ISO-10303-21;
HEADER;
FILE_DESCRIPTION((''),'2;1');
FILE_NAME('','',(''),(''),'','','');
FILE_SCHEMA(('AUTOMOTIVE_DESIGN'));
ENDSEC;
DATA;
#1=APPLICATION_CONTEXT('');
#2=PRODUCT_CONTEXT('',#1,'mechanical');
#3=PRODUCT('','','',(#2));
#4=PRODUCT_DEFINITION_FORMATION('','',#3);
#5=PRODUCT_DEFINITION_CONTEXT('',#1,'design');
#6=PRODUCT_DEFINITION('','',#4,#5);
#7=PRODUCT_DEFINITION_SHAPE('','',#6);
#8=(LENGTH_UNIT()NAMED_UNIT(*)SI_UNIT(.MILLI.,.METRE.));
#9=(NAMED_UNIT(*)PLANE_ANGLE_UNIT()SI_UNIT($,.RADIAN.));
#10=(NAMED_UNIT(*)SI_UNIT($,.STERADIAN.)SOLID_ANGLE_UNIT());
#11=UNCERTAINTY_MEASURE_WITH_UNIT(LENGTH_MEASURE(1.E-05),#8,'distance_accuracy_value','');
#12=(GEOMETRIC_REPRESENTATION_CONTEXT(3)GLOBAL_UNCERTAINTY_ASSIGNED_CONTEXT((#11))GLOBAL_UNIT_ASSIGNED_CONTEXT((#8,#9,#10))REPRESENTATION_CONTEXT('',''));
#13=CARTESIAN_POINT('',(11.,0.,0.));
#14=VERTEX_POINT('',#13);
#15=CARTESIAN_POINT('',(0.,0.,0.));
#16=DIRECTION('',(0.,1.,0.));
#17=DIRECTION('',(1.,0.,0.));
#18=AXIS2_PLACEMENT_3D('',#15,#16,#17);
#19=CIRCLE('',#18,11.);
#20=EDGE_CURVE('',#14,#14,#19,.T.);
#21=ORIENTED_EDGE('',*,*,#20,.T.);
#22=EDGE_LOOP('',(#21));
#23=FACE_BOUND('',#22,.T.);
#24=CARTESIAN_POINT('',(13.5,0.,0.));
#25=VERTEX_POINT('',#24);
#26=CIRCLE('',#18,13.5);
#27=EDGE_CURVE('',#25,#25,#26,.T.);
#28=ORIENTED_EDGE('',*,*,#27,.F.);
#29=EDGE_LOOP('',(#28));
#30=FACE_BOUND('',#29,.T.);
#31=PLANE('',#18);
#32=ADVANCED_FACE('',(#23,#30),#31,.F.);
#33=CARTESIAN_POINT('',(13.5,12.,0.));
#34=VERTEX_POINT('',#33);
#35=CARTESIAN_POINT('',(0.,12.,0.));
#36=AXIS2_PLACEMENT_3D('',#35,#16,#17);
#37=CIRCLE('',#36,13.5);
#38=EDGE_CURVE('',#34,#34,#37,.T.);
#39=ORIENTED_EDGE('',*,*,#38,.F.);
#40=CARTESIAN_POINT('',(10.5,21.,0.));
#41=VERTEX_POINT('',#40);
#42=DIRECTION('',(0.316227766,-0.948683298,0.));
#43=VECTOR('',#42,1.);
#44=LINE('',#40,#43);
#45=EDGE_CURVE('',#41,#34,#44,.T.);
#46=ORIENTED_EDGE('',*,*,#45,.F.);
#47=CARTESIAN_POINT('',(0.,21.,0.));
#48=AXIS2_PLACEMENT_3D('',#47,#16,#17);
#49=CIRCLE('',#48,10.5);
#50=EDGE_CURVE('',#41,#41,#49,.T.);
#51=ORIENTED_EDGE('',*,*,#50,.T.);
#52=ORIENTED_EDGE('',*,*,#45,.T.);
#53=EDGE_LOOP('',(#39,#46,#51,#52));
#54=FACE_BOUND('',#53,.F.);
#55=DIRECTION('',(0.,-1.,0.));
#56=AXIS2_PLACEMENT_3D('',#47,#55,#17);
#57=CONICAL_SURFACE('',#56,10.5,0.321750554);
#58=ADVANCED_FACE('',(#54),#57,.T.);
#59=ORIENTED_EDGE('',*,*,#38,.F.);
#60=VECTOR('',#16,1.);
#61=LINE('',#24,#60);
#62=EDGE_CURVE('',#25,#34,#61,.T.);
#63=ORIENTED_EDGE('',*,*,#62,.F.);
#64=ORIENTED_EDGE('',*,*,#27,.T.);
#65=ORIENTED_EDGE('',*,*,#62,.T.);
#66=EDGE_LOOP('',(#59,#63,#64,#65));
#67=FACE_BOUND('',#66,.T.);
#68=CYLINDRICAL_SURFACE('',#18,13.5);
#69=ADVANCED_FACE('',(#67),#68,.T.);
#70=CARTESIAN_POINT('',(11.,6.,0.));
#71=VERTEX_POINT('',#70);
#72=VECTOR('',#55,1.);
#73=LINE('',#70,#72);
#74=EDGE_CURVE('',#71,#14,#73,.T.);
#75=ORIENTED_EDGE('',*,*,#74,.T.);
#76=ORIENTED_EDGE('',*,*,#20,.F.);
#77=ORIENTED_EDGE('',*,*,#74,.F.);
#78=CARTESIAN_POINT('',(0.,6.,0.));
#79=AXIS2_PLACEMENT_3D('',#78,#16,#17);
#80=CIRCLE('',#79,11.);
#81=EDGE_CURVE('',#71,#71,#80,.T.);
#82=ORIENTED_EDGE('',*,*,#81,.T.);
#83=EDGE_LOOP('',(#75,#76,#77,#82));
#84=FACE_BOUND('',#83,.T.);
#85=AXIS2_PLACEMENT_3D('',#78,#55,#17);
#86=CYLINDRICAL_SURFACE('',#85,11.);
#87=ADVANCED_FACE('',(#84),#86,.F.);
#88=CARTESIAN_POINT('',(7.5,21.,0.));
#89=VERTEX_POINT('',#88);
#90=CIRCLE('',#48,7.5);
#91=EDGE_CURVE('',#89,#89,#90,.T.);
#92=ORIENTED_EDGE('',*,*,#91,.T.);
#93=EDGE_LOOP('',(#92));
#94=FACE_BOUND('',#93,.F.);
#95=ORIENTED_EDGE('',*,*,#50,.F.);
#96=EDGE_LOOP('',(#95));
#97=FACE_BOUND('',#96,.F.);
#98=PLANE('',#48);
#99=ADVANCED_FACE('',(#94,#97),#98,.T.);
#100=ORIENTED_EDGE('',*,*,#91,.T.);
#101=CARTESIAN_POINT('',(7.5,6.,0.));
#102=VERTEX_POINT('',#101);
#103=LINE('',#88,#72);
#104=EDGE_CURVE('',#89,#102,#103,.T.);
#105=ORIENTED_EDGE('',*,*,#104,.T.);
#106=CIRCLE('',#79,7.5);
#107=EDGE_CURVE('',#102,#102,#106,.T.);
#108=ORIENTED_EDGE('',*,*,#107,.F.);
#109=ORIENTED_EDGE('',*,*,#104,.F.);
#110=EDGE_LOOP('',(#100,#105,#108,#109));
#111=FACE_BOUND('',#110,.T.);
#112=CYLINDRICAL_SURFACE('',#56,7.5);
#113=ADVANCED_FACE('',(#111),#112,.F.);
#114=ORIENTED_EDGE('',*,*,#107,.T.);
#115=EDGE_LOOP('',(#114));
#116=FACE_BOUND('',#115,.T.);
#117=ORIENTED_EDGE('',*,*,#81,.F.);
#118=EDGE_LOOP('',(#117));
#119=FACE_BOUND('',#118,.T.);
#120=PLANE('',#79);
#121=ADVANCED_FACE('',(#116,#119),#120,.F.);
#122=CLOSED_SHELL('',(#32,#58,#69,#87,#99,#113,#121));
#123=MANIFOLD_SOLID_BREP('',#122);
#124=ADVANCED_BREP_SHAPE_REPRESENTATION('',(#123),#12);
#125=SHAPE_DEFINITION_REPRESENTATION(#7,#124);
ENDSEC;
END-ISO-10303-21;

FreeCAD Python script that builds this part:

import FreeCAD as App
import Part
import Sketcher
from FreeCAD import Vector

doc = App.newDocument("Part")
body = doc.addObject("PartDesign::Body", "Body")

sketch1 = doc.addObject("Sketcher::SketchObject", "Sketch")
body.addObject(sketch1)
sketch1.AttachmentSupport = (doc.XY_Plane, [""])
sketch1.MapMode = "FlatFace"
sketch1.addGeometry(Part.LineSegment(Vector(10.5, 21, 0), Vector(7.5, 21, 0)), False)
sketch1.addGeometry(Part.LineSegment(Vector(7.5, 21, 0), Vector(7.5, 6, 0)), False)
sketch1.addGeometry(Part.LineSegment(Vector(7.5, 6, 0), Vector(11, 6, 0)), False)
sketch1.addGeometry(Part.LineSegment(Vector(11, 6, 0), Vector(11, 0, 0)), False)
sketch1.addGeometry(Part.LineSegment(Vector(11, 0, 0), Vector(13.5, 0, 0)), False)
sketch1.addGeometry(Part.LineSegment(Vector(13.5, 0, 0), Vector(13.5, 12, 0)), False)
sketch1.addGeometry(Part.LineSegment(Vector(13.5, 12, 0), Vector(10.5, 21, 0)), False)
sketch1.addConstraint(Sketcher.Constraint("Coincident", 0, 2, 1, 1))
sketch1.addConstraint(Sketcher.Constraint("Coincident", 1, 2, 2, 1))
sketch1.addConstraint(Sketcher.Constraint("Coincident", 2, 2, 3, 1))
sketch1.addConstraint(Sketcher.Constraint("Coincident", 3, 2, 4, 1))
sketch1.addConstraint(Sketcher.Constraint("Coincident", 4, 2, 5, 1))
sketch1.addConstraint(Sketcher.Constraint("Coincident", 5, 2, 6, 1))
sketch1.addConstraint(Sketcher.Constraint("Coincident", 6, 2, 0, 1))
sketch1.addConstraint(Sketcher.Constraint("Horizontal", 0))
sketch1.addConstraint(Sketcher.Constraint("Vertical", 1))
sketch1.addConstraint(Sketcher.Constraint("Horizontal", 2))
sketch1.addConstraint(Sketcher.Constraint("Vertical", 3))
sketch1.addConstraint(Sketcher.Constraint("Horizontal", 4))
sketch1.addConstraint(Sketcher.Constraint("Vertical", 5))
sketch1.addConstraint(Sketcher.Constraint("PointOnObject", 3, 2, -1))
sketch1.addConstraint(Sketcher.Constraint("DistanceX", 0, 2, 0, 1, 3.0))
sketch1.addConstraint(Sketcher.Constraint("DistanceY", 1, 2, 1, 1, 15.0))
sketch1.addConstraint(Sketcher.Constraint("DistanceY", 3, 2, 3, 1, 6.0))
sketch1.addConstraint(Sketcher.Constraint("DistanceY", 5, 1, 5, 2, 12.0))
sketch1.addConstraint(Sketcher.Constraint("DistanceX", 4, 1, 4, 2, 2.5))
sketch1.addConstraint(Sketcher.Constraint("DistanceX", -1, 1, 2, 2, 11.0))
sketch1.addConstraint(Sketcher.Constraint("DistanceX", 1, 2, 4, 2, 6.0))
revolution = doc.addObject("PartDesign::Revolution", "Revolution")
body.addObject(revolution)
revolution.Profile = sketch1
revolution.ReferenceAxis = (sketch1, ["V_Axis"])
revolution.Angle = 360

doc.recompute()
